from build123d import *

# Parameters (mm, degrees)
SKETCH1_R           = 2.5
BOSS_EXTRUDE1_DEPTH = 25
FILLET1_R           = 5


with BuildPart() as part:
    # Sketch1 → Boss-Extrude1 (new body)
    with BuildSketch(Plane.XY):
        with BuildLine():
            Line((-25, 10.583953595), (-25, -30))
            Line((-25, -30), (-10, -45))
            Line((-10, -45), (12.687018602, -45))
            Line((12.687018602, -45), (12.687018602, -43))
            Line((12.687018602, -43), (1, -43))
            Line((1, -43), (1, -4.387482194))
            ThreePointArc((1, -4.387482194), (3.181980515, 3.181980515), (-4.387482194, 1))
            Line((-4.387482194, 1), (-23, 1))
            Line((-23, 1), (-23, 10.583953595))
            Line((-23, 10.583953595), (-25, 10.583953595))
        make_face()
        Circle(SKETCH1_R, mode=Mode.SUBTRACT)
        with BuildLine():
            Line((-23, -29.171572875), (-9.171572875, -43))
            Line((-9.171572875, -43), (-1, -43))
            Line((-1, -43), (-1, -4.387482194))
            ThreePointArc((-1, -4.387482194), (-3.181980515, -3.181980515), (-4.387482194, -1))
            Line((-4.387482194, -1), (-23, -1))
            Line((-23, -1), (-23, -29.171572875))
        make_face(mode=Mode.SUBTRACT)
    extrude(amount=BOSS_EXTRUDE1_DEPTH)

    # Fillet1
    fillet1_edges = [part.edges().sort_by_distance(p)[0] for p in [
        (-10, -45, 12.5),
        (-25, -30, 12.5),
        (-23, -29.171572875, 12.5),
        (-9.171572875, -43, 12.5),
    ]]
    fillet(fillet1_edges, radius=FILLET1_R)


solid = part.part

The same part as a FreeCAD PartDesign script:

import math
import FreeCAD as App
import Part
import Sketcher
from FreeCAD import Vector
Q = App.Units.Quantity


def edges_at(feature, points):
    """Names of the edges that pass closest to the given points."""
    edges = feature.Shape.Edges
    near = lambda p: min(range(len(edges)), key=lambda i: edges[i].distToShape(Part.Vertex(*p))[0])
    return sorted({f"Edge{near(p) + 1}" for p in points})

doc = App.newDocument("Part")
body = doc.addObject("PartDesign::Body", "Body")

sketch1 = body.newObject("Sketcher::SketchObject", "Sketch")
sketch1.AttachmentSupport = (doc.getObject("XY_Plane"), [""])
sketch1.MapMode = "FlatFace"
sketch1.addGeometry(Part.LineSegment(Vector(-25, 10.6, 0), Vector(-25, -30, 0)), False)
sketch1.addGeometry(Part.LineSegment(Vector(-25, -30, 0), Vector(-10, -45, 0)), False)
sketch1.addGeometry(Part.LineSegment(Vector(-10, -45, 0), Vector(12.7, -45, 0)), False)
sketch1.addGeometry(Part.LineSegment(Vector(12.7, -45, 0), Vector(12.7, -43, 0)), False)
sketch1.addGeometry(Part.LineSegment(Vector(12.7, -43, 0), Vector(1, -43, 0)), False)
sketch1.addGeometry(Part.LineSegment(Vector(1, -43, 0), Vector(1, -4.4, 0)), False)
sketch1.addGeometry(Part.ArcOfCircle(Part.Circle(Vector(0, 0, 0), Vector(0, 0, 1), 4.5), math.radians(-77), math.radians(167)), False)
sketch1.addGeometry(Part.LineSegment(Vector(-4.4, 1, 0), Vector(-23, 1, 0)), False)
sketch1.addGeometry(Part.LineSegment(Vector(-23, 1, 0), Vector(-23, 10.6, 0)), False)
sketch1.addGeometry(Part.LineSegment(Vector(-23, 10.6, 0), Vector(-25, 10.6, 0)), False)
sketch1.addGeometry(Part.LineSegment(Vector(-9.2, -43, 0), Vector(-23, -29.2, 0)), False)
sketch1.addGeometry(Part.LineSegment(Vector(-23, -29.2, 0), Vector(-23, -1, 0)), False)
sketch1.addGeometry(Part.LineSegment(Vector(-23, -1, 0), Vector(-4.4, -1, 0)), False)
sketch1.addGeometry(Part.ArcOfCircle(Part.Circle(Vector(0, 0, 0), Vector(0, 0, 1), 4.5), math.radians(-167), math.radians(-103)), False)
sketch1.addGeometry(Part.LineSegment(Vector(-1, -4.4, 0), Vector(-1, -43, 0)), False)
sketch1.addGeometry(Part.LineSegment(Vector(-1, -43, 0), Vector(-9.2, -43, 0)), False)
sketch1.addGeometry(Part.Circle(Vector(0, 0, 0), Vector(0, 0, 1), 2.5), False)
sketch1.addConstraint(Sketcher.Constraint("Coincident", 0, 2, 1, 1))
sketch1.addConstraint(Sketcher.Constraint("Coincident", 1, 2, 2, 1))
sketch1.addConstraint(Sketcher.Constraint("Coincident", 2, 2, 3, 1))
sketch1.addConstraint(Sketcher.Constraint("Coincident", 3, 2, 4, 1))
sketch1.addConstraint(Sketcher.Constraint("Coincident", 4, 2, 5, 1))
sketch1.addConstraint(Sketcher.Constraint("Coincident", 5, 2, 6, 1))
sketch1.addConstraint(Sketcher.Constraint("Coincident", 6, 2, 7, 1))
sketch1.addConstraint(Sketcher.Constraint("Coincident", 7, 2, 8, 1))
sketch1.addConstraint(Sketcher.Constraint("Coincident", 8, 2, 9, 1))
sketch1.addConstraint(Sketcher.Constraint("Coincident", 9, 2, 0, 1))
sketch1.addConstraint(Sketcher.Constraint("Coincident", 10, 2, 11, 1))
sketch1.addConstraint(Sketcher.Constraint("Coincident", 11, 2, 12, 1))
sketch1.addConstraint(Sketcher.Constraint("Coincident", 12, 2, 13, 1))
sketch1.addConstraint(Sketcher.Constraint("Coincident", 13, 2, 14, 1))
sketch1.addConstraint(Sketcher.Constraint("Coincident", 14, 2, 15, 1))
sketch1.addConstraint(Sketcher.Constraint("Coincident", 15, 2, 10, 1))
sketch1.addConstraint(Sketcher.Constraint("Vertical", 0))
sketch1.addConstraint(Sketcher.Constraint("Horizontal", 2))
sketch1.addConstraint(Sketcher.Constraint("Vertical", 3))
sketch1.addConstraint(Sketcher.Constraint("Horizontal", 4))
sketch1.addConstraint(Sketcher.Constraint("Vertical", 5))
sketch1.addConstraint(Sketcher.Constraint("Horizontal", 7))
sketch1.addConstraint(Sketcher.Constraint("Vertical", 8))
sketch1.addConstraint(Sketcher.Constraint("Horizontal", 9))
sketch1.addConstraint(Sketcher.Constraint("Vertical", 11))
sketch1.addConstraint(Sketcher.Constraint("Horizontal", 12))
sketch1.addConstraint(Sketcher.Constraint("Vertical", 14))
sketch1.addConstraint(Sketcher.Constraint("Horizontal", 15))
sketch1.addConstraint(Sketcher.Constraint("Coincident", 6, 3, -1, 1))
sketch1.addConstraint(Sketcher.Constraint("Coincident", 13, 3, -1, 1))
sketch1.addConstraint(Sketcher.Constraint("Coincident", 16, 3, -1, 1))
sketch1.addConstraint(Sketcher.Constraint("Equal", 6, 13))
sketch1.addConstraint(Sketcher.Constraint("Symmetric", 4, 2, 14, 2, -2))
sketch1.addConstraint(Sketcher.Constraint("Symmetric", 7, 2, 11, 2, -1))
sketch1.addConstraint(Sketcher.Constraint("Parallel", 1, 10))
sketch1.addConstraint(Sketcher.Constraint("Equal", 9, 3))
sketch1.addConstraint(Sketcher.Constraint("Diameter", 16, Q("5 mm")))
sketch1.addConstraint(Sketcher.Constraint("Radius", 6, Q("4.5 mm")))
sketch1.addConstraint(Sketcher.Constraint("DistanceX", 9, 2, 9, 1, Q("2 mm")))
sketch1.addConstraint(Sketcher.Constraint("Angle", 1, Q("-45 deg")))
sketch1.addConstraint(Sketcher.Constraint("DistanceX", 0, 2, -1, 1, Q("25 mm")))
sketch1.addConstraint(Sketcher.Constraint("DistanceY", 0, 2, -1, 1, Q("30 mm")))
sketch1.addConstraint(Sketcher.Constraint("DistanceX", 1, 2, -1, 1, Q("10 mm")))
sketch1.addConstraint(Sketcher.Constraint("DistanceX", -1, 1, 4, 2, Q("1 mm")))
sketch1.addConstraint(Sketcher.Constraint("DistanceY", -1, 1, 6, 2, Q("1 mm")))
sketch1.addConstraint(Sketcher.Constraint("DistanceX", 2, 1, 2, 2, Q("22.687019 mm")))
sketch1.addConstraint(Sketcher.Constraint("Distance", 10, Q("19.556349 mm")))
sketch1.addConstraint(Sketcher.Constraint("DistanceY", 0, 2, 0, 1, Q("40.583954 mm")))
pad1 = body.newObject("PartDesign::Pad", "Pad")
pad1.Profile = sketch1
pad1.Length = 25
doc.recompute()

fillet = body.newObject("PartDesign::Fillet", "Fillet")
fillet.Base = (pad1, edges_at(pad1, [
    (-10, -45, 12.5),
    (-25, -30, 12.5),
    (-23, -29.172, 12.5),
    (-9.172, -43, 12.5),
]))
fillet.Radius = 5

doc.recompute()
